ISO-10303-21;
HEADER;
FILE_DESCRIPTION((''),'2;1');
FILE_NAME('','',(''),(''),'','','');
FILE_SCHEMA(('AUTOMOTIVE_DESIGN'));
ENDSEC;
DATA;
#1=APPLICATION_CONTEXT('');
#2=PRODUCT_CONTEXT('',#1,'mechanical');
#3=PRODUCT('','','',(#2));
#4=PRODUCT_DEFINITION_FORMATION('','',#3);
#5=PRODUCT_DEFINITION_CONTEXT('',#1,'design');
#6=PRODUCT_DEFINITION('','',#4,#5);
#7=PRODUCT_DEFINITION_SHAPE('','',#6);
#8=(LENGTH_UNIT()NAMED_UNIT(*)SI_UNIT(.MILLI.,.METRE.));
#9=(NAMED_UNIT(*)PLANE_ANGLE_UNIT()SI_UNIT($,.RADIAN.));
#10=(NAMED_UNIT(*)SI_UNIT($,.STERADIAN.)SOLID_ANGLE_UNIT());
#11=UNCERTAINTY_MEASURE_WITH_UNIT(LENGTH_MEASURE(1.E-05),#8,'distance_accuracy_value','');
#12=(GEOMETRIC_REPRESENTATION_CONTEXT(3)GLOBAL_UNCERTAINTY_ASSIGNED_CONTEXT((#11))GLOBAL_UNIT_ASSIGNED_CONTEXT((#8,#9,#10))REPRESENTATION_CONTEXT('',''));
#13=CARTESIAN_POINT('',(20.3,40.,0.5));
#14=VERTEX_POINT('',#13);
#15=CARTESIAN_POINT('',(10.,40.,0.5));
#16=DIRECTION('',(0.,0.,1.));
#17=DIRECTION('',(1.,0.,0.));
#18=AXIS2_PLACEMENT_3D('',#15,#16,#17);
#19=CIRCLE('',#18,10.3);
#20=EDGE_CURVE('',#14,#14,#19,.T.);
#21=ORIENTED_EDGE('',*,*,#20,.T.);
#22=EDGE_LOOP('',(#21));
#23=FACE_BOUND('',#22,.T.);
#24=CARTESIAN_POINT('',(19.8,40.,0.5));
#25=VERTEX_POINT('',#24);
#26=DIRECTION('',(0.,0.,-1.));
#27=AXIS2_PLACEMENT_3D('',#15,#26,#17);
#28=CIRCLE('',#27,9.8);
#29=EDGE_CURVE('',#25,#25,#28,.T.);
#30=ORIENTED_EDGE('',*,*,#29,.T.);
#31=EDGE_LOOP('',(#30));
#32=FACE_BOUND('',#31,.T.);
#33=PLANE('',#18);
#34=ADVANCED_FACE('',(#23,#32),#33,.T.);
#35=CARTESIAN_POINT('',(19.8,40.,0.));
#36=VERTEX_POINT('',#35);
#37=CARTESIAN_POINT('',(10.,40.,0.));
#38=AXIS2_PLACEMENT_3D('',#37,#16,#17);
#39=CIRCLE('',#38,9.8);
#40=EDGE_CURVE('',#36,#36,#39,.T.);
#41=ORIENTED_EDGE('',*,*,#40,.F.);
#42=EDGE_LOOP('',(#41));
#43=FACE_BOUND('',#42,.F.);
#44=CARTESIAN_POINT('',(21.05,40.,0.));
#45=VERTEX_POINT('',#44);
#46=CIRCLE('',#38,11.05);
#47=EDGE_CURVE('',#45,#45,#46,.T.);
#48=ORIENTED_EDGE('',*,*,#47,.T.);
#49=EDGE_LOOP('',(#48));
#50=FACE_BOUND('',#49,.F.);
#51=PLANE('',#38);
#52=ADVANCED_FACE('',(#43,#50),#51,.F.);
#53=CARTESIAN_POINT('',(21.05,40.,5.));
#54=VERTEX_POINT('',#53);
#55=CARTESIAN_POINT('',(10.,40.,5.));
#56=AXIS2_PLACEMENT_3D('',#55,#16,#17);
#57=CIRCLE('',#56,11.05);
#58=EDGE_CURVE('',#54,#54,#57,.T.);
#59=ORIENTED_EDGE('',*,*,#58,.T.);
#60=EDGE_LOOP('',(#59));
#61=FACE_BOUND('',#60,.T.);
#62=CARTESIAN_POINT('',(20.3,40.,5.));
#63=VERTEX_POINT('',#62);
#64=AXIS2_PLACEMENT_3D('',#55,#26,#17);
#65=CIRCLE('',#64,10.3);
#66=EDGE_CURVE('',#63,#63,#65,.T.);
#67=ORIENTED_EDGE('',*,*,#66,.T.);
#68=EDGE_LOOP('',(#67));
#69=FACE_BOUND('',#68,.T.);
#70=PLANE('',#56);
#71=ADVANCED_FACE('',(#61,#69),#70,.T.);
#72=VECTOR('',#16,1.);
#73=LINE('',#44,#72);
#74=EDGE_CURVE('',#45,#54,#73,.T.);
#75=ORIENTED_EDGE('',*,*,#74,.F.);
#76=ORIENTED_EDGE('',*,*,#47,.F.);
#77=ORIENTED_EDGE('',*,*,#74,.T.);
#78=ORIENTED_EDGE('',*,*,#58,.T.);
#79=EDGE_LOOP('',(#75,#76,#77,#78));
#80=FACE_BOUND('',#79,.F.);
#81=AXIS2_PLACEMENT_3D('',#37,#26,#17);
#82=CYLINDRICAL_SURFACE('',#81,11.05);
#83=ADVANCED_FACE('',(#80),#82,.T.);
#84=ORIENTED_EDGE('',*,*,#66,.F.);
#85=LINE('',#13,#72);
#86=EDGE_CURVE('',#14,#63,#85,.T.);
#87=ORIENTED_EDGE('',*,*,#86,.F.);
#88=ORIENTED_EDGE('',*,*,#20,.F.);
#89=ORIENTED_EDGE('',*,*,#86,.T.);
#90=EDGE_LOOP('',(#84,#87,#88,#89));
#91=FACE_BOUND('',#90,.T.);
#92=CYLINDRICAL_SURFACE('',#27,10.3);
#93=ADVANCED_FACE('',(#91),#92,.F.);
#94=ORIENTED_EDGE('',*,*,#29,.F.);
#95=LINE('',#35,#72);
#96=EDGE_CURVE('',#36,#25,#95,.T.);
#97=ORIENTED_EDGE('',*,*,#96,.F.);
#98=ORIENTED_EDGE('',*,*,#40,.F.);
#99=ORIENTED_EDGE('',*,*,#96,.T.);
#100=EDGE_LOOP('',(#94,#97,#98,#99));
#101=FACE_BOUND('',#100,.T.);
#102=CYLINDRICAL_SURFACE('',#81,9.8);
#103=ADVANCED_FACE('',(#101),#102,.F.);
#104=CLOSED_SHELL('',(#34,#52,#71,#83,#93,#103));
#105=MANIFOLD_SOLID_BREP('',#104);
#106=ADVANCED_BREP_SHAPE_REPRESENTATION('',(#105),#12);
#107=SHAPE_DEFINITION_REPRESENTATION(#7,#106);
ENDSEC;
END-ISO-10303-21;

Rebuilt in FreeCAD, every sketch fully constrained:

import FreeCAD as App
import Part
import Sketcher
from FreeCAD import Vector

doc = App.newDocument("Part")
body = doc.addObject("PartDesign::Body", "Body")

sketch1 = doc.addObject("Sketcher::SketchObject", "Sketch")
body.addObject(sketch1)
sketch1.AttachmentSupport = (doc.XY_Plane, [""])
sketch1.MapMode = "FlatFace"
sketch1.addGeometry(Part.Circle(Vector(0, 0, 0), Vector(0, 0, 1), 10), False)
sketch1.addConstraint(Sketcher.Constraint("Coincident", 0, 3, -1, 1))
sketch1.addConstraint(Sketcher.Constraint("Diameter", 0, 19.6))
pad1 = doc.addObject("PartDesign::Pad", "Pad")
body.addObject(pad1)
pad1.Profile = sketch1
pad1.Length = 10
body2 = doc.addObject("PartDesign::Body", "Body001")

sketch2 = doc.addObject("Sketcher::SketchObject", "Sketch001")
body2.addObject(sketch2)
sketch2.AttachmentSupport = (doc.getObject("XY_Plane001"), [""])
sketch2.MapMode = "FlatFace"
sketch2.AttachmentOffset = App.Placement(Vector(0, 0, 0.5), App.Rotation())
sketch2.addGeometry(Part.Circle(Vector(0, 0, 0), Vector(0, 0, 1), 10), False)
sketch2.addConstraint(Sketcher.Constraint("Coincident", 0, 3, -1, 1))
sketch2.addConstraint(Sketcher.Constraint("Diameter", 0, 20.6))
pad2 = doc.addObject("PartDesign::Pad", "Pad001")
body2.addObject(pad2)
pad2.Profile = sketch2
pad2.Length = 10
body3 = doc.addObject("PartDesign::Body", "Body002")

sketch3 = doc.addObject("Sketcher::SketchObject", "Sketch002")
body3.addObject(sketch3)
sketch3.AttachmentSupport = (doc.getObject("XY_Plane002"), [""])
sketch3.MapMode = "FlatFace"
sketch3.addGeometry(Part.Circle(Vector(0, 0, 0), Vector(0, 0, 1), 11), False)
sketch3.addConstraint(Sketcher.Constraint("Coincident", 0, 3, -1, 1))
sketch3.addConstraint(Sketcher.Constraint("Diameter", 0, 22.1))
pad3 = doc.addObject("PartDesign::Pad", "Pad002")
body3.addObject(pad3)
pad3.Profile = sketch3
pad3.Length = 5
doc.recompute()

boolean = doc.addObject("PartDesign::Boolean", "Boolean")
body3.addObject(boolean)
boolean.Type = "Cut"
boolean.addObjects([body2])
doc.recompute()

boolean2 = doc.addObject("PartDesign::Boolean", "Boolean001")
body3.addObject(boolean2)
boolean2.Type = "Cut"
boolean2.addObjects([body])
body4 = doc.addObject("PartDesign::Body", "Body003")
doc.recompute()

body3.Placement = App.Placement(Vector(10, 40, 0), App.Rotation(Vector(0, 0, 1), 0))
boolean3 = doc.addObject("PartDesign::Boolean", "Boolean002")
body4.addObject(boolean3)
boolean3.Type = "Fuse"
boolean3.addObjects([body3])

doc.recompute()
